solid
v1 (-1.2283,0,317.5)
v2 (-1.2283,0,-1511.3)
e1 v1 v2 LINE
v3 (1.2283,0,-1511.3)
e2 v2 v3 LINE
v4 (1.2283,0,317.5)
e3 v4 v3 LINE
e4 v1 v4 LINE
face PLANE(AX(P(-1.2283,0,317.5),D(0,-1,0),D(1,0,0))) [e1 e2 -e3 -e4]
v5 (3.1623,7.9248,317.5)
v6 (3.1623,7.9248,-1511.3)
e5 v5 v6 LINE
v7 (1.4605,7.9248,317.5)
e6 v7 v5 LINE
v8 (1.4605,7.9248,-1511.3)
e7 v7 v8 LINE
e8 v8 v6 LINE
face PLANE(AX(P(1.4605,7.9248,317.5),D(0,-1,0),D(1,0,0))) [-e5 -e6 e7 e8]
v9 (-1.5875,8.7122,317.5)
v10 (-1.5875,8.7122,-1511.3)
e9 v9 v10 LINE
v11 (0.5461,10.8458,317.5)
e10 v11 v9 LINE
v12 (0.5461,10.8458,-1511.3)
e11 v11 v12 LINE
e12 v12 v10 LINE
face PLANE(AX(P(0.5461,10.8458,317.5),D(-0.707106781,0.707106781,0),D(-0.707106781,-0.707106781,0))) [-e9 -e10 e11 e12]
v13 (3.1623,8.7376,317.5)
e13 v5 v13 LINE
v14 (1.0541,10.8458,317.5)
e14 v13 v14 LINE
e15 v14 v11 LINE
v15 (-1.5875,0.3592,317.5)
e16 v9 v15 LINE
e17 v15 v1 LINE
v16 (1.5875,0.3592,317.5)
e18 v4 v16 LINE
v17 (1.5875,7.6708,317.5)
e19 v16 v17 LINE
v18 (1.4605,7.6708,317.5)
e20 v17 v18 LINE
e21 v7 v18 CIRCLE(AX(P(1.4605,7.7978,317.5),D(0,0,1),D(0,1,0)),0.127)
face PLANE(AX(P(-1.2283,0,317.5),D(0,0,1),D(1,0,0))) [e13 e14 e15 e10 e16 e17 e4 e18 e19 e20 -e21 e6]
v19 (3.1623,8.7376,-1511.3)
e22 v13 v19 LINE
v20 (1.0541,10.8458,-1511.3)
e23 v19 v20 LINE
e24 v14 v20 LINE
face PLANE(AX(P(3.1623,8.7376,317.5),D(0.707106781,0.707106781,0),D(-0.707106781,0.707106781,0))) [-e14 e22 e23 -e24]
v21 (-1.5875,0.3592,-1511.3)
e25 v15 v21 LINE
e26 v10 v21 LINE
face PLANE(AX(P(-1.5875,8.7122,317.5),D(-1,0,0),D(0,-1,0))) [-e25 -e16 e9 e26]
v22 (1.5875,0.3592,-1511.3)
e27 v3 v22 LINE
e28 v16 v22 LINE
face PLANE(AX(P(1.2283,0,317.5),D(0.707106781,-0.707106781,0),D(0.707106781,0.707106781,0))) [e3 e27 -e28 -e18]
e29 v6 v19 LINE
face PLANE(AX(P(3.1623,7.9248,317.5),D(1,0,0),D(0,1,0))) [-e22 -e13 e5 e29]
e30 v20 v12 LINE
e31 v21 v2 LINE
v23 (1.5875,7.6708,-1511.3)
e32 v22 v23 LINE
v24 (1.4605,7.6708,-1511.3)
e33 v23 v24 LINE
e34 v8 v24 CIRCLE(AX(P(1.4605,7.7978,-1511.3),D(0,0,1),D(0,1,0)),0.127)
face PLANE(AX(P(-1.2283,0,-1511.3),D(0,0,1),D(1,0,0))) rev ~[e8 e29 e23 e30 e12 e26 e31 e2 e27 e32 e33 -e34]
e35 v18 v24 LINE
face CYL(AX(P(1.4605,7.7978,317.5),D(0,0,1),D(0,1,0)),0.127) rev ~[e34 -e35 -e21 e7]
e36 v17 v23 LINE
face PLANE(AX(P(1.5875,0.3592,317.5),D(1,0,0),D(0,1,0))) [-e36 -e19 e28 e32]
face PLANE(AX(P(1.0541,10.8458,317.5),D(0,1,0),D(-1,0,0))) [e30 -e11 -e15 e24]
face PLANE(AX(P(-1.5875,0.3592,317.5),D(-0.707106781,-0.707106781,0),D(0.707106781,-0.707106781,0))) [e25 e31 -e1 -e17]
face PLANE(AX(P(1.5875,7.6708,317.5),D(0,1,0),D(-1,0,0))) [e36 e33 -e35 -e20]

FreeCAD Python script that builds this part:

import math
import FreeCAD as App
import Part
import Sketcher
Q = App.Units.Quantity

doc = App.newDocument("Part")
params = doc.addObject("Spreadsheet::Sheet", "Params")
for row, (alias, value) in enumerate([
    ("sketch1_radius", "0.005 in"),
    ("sketch1_width", "0.02 in"),
    ("sketch1_length", "0.02 in"),
    ("sketch1_width2", "0.005 in"),
    ("sketch1_width3", "0.067 in"),
    ("pad1_length", "72 in"),
], start=1):
    params.set(f"A{row}", alias)
    params.set(f"B{row}", "=" + value)
    params.setAlias(f"B{row}", alias)

body = doc.addObject("PartDesign::Body", "Body")

sketch1 = doc.addObject("Sketcher::SketchObject", "Sketch")
body.addObject(sketch1)
sketch1.AttachmentSupport = (doc.XY_Plane, [""])
sketch1.MapMode = "FlatFace"
sketch1.AttachmentOffset = App.Placement(App.Vector(0, 0, 12.5 * 25.4), App.Rotation())
sketch1.addGeometry([
    Part.LineSegment(App.Vector(0.5461, 10.8458, 0), App.Vector(-1.5875, 8.7122, 0)),
    Part.LineSegment(App.Vector(-1.5875, 8.7122, 0), App.Vector(-1.5875, 0.3592, 0)),
    Part.LineSegment(App.Vector(-1.5875, 0.3592, 0), App.Vector(-1.2283, 0, 0)),
    Part.LineSegment(App.Vector(-1.2283, 0, 0), App.Vector(1.2283, 0, 0)),
    Part.LineSegment(App.Vector(1.2283, 0, 0), App.Vector(1.5875, 0.3592, 0)),
    Part.LineSegment(App.Vector(1.5875, 0.3592, 0), App.Vector(1.5875, 7.6708, 0)),
    Part.LineSegment(App.Vector(1.5875, 7.6708, 0), App.Vector(1.4605, 7.6708, 0)),
    Part.ArcOfCircle(Part.Circle(App.Vector(1.4605, 7.7978, 0), App.Vector(0, 0, 1), 0.127), math.radians(90), math.radians(270)),
    Part.LineSegment(App.Vector(1.4605, 7.9248, 0), App.Vector(3.1623, 7.9248, 0)),
    Part.LineSegment(App.Vector(3.1623, 7.9248, 0), App.Vector(3.1623, 8.7376, 0)),
    Part.LineSegment(App.Vector(3.1623, 8.7376, 0), App.Vector(1.0541, 10.8458, 0)),
    Part.LineSegment(App.Vector(1.0541, 10.8458, 0), App.Vector(0.5461, 10.8458, 0)),
], False)
sketch1.addConstraint([
    Sketcher.Constraint("Coincident", 0, 2, 1, 1),
    Sketcher.Constraint("Coincident", 1, 2, 2, 1),
    Sketcher.Constraint("Coincident", 2, 2, 3, 1),
    Sketcher.Constraint("Coincident", 3, 2, 4, 1),
    Sketcher.Constraint("Coincident", 4, 2, 5, 1),
    Sketcher.Constraint("Coincident", 5, 2, 6, 1),
    Sketcher.Constraint("Tangent", 6, 2, 7, 2),
    Sketcher.Constraint("Tangent", 7, 1, 8, 1),
    Sketcher.Constraint("Coincident", 8, 2, 9, 1),
    Sketcher.Constraint("Coincident", 9, 2, 10, 1),
    Sketcher.Constraint("Coincident", 10, 2, 11, 1),
    Sketcher.Constraint("Coincident", 11, 2, 0, 1),
    Sketcher.Constraint("Vertical", 1),
    Sketcher.Constraint("Horizontal", 3),
    Sketcher.Constraint("Vertical", 5),
    Sketcher.Constraint("Horizontal", 6),
    Sketcher.Constraint("Horizontal", 8),
    Sketcher.Constraint("Vertical", 9),
    Sketcher.Constraint("Horizontal", 11),
    Sketcher.Constraint("Symmetric", 2, 2, 3, 2, -1, 1),
    Sketcher.Constraint("Symmetric", 1, 2, 4, 2, -2),
    Sketcher.Constraint("Perpendicular", 0, 2),
    Sketcher.Constraint("Perpendicular", 2, 4),
    Sketcher.Constraint("Perpendicular", 4, 10),
    Sketcher.Constraint("Radius", 7, Q("0.005 in")),
    Sketcher.Constraint("DistanceX", 11, 2, 11, 1, Q("0.02 in")),
    Sketcher.Constraint("Distance", 2, Q("0.02 in")),
    Sketcher.Constraint("DistanceX", 6, 2, 6, 1, Q("0.005 in")),
    Sketcher.Constraint("DistanceX", 8, 1, 8, 2, Q("0.067 in")),
    Sketcher.Constraint("DistanceY", 9, 1, 9, 2, Q("0.032 in")),
    Sketcher.Constraint("DistanceX", 0, 2, 7, 3, Q("0.12 in")),
    Sketcher.Constraint("DistanceY", 7, 3, 10, 2, Q("0.12 in")),
    Sketcher.Constraint("DistanceY", -1, 1, 7, 3, Q("0.307 in")),
])
sketch1.setExpression("Constraints[24]", "Params.sketch1_radius")
sketch1.setExpression("Constraints[25]", "Params.sketch1_width")
sketch1.setExpression("Constraints[26]", "Params.sketch1_length")
sketch1.setExpression("Constraints[27]", "Params.sketch1_width2")
sketch1.setExpression("Constraints[28]", "Params.sketch1_width3")
pad1 = doc.addObject("PartDesign::Pad", "Pad")
body.addObject(pad1)
pad1.Profile = sketch1
pad1.setExpression("Length", "Params.pad1_length")
pad1.Reversed = True

doc.recompute()
